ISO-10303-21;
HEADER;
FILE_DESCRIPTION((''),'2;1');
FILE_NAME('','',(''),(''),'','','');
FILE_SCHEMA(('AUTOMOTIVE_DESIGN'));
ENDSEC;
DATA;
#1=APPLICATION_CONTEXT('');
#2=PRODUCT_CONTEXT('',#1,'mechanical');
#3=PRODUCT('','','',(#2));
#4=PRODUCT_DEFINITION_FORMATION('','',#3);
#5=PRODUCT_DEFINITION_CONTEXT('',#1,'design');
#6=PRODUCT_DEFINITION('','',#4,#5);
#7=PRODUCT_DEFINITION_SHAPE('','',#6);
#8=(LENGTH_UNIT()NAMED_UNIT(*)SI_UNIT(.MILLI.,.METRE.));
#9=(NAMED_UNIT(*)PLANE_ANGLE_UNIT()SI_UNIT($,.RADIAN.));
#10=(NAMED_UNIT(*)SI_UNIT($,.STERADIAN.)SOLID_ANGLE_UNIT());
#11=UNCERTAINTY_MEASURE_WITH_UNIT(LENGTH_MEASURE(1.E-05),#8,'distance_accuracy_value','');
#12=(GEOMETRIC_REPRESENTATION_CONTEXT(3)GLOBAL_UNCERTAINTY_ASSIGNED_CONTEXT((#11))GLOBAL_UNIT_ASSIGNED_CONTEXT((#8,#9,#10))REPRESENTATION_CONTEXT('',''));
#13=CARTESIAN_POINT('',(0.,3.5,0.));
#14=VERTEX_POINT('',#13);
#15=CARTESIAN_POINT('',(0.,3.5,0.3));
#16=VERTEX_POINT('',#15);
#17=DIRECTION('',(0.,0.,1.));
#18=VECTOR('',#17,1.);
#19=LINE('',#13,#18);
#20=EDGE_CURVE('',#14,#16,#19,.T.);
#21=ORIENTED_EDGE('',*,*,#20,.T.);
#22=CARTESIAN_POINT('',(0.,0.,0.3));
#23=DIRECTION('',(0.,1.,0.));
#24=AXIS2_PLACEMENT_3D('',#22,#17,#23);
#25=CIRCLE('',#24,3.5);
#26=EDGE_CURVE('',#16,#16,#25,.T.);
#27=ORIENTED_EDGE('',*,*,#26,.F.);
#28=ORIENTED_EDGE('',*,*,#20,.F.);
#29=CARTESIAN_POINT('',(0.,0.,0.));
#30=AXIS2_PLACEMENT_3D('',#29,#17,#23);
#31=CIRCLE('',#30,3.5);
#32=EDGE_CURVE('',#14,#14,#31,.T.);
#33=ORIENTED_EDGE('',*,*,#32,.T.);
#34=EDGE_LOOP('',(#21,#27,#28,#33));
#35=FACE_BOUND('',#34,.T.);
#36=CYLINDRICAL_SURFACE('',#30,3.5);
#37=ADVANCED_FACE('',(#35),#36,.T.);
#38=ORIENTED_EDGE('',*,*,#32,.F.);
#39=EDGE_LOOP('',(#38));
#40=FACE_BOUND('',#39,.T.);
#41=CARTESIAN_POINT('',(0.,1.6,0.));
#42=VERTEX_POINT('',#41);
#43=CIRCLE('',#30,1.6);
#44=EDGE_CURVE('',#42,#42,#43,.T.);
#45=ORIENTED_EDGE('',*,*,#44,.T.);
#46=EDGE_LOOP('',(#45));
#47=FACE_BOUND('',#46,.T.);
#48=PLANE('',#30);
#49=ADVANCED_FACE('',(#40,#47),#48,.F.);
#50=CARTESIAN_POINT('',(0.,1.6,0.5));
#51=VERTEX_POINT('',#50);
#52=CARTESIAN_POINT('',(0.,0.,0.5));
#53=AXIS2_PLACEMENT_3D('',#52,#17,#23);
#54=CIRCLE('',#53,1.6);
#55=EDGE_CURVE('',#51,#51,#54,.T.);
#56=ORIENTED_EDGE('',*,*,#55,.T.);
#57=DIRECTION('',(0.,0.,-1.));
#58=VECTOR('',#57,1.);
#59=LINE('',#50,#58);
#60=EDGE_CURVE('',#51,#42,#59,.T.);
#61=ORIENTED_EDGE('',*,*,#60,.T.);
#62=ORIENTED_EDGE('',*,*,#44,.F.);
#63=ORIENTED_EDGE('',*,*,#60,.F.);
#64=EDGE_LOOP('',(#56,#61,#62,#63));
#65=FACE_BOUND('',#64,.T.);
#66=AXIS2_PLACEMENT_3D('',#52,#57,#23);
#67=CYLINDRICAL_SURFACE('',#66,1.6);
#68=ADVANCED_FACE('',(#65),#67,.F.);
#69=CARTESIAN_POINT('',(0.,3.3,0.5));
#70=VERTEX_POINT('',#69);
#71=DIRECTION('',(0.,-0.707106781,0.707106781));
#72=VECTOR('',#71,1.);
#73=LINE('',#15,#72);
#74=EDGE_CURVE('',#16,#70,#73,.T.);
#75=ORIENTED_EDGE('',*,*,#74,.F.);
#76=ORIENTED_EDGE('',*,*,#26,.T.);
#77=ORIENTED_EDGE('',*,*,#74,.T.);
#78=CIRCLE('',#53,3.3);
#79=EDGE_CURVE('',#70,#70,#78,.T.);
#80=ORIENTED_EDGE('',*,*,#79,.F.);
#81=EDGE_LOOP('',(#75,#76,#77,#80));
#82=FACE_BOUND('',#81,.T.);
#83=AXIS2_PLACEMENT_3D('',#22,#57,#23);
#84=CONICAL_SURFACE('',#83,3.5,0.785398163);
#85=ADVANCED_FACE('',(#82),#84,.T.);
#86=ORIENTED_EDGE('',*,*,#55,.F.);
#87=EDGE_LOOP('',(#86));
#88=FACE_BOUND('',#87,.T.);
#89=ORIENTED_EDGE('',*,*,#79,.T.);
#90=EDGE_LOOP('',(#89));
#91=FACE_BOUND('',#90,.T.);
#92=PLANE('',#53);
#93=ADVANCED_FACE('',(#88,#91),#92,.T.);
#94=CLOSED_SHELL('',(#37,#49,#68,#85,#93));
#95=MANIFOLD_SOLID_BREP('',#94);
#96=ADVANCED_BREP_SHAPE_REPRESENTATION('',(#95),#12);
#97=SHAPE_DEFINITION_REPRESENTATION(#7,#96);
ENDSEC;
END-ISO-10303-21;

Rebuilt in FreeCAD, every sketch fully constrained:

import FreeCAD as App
import Part
import Sketcher

V = App.Vector
Q = App.Units.Quantity

doc = App.newDocument("Part")
body = doc.addObject("PartDesign::Body", "Body")

sketch1 = doc.addObject("Sketcher::SketchObject", "Sketch")
body.addObject(sketch1)
sketch1.AttachmentSupport = (doc.YZ_Plane, [""])
sketch1.MapMode = "FlatFace"
sketch1.addGeometry(Part.LineSegment(V(1.6, 0, 0), V(3.5, 0, 0)), False)
sketch1.addGeometry(Part.LineSegment(V(3.5, 0, 0), V(3.5, 0.3, 0)), False)
sketch1.addGeometry(Part.LineSegment(V(3.5, 0.3, 0), V(3.3, 0.5, 0)), False)
sketch1.addGeometry(Part.LineSegment(V(3.3, 0.5, 0), V(1.6, 0.5, 0)), False)
sketch1.addGeometry(Part.LineSegment(V(1.6, 0.5, 0), V(1.6, 0, 0)), False)
sketch1.addConstraint(Sketcher.Constraint("Coincident", 0, 2, 1, 1))
sketch1.addConstraint(Sketcher.Constraint("Coincident", 1, 2, 2, 1))
sketch1.addConstraint(Sketcher.Constraint("Coincident", 2, 2, 3, 1))
sketch1.addConstraint(Sketcher.Constraint("Coincident", 3, 2, 4, 1))
sketch1.addConstraint(Sketcher.Constraint("Coincident", 4, 2, 0, 1))
sketch1.addConstraint(Sketcher.Constraint("Horizontal", 0))
sketch1.addConstraint(Sketcher.Constraint("Vertical", 1))
sketch1.addConstraint(Sketcher.Constraint("Horizontal", 3))
sketch1.addConstraint(Sketcher.Constraint("Vertical", 4))
sketch1.addConstraint(Sketcher.Constraint("PointOnObject", 0, 2, -1))
sketch1.addConstraint(Sketcher.Constraint("Angle", 2, Q("135 deg")))
sketch1.addConstraint(Sketcher.Constraint("DistanceX", 0, 1, 0, 2, Q("1.9 mm")))
sketch1.addConstraint(Sketcher.Constraint("DistanceX", 3, 2, 3, 1, Q("1.7 mm")))
sketch1.addConstraint(Sketcher.Constraint("DistanceY", 1, 1, 1, 2, Q("0.3 mm")))
sketch1.addConstraint(Sketcher.Constraint("DistanceX", -1, 1, 0, 2, Q("3.5 mm")))
revolution = doc.addObject("PartDesign::Revolution", "Revolution")
body.addObject(revolution)
revolution.Profile = sketch1
revolution.ReferenceAxis = (sketch1, ["V_Axis"])
revolution.Angle = 360

doc.recompute()
